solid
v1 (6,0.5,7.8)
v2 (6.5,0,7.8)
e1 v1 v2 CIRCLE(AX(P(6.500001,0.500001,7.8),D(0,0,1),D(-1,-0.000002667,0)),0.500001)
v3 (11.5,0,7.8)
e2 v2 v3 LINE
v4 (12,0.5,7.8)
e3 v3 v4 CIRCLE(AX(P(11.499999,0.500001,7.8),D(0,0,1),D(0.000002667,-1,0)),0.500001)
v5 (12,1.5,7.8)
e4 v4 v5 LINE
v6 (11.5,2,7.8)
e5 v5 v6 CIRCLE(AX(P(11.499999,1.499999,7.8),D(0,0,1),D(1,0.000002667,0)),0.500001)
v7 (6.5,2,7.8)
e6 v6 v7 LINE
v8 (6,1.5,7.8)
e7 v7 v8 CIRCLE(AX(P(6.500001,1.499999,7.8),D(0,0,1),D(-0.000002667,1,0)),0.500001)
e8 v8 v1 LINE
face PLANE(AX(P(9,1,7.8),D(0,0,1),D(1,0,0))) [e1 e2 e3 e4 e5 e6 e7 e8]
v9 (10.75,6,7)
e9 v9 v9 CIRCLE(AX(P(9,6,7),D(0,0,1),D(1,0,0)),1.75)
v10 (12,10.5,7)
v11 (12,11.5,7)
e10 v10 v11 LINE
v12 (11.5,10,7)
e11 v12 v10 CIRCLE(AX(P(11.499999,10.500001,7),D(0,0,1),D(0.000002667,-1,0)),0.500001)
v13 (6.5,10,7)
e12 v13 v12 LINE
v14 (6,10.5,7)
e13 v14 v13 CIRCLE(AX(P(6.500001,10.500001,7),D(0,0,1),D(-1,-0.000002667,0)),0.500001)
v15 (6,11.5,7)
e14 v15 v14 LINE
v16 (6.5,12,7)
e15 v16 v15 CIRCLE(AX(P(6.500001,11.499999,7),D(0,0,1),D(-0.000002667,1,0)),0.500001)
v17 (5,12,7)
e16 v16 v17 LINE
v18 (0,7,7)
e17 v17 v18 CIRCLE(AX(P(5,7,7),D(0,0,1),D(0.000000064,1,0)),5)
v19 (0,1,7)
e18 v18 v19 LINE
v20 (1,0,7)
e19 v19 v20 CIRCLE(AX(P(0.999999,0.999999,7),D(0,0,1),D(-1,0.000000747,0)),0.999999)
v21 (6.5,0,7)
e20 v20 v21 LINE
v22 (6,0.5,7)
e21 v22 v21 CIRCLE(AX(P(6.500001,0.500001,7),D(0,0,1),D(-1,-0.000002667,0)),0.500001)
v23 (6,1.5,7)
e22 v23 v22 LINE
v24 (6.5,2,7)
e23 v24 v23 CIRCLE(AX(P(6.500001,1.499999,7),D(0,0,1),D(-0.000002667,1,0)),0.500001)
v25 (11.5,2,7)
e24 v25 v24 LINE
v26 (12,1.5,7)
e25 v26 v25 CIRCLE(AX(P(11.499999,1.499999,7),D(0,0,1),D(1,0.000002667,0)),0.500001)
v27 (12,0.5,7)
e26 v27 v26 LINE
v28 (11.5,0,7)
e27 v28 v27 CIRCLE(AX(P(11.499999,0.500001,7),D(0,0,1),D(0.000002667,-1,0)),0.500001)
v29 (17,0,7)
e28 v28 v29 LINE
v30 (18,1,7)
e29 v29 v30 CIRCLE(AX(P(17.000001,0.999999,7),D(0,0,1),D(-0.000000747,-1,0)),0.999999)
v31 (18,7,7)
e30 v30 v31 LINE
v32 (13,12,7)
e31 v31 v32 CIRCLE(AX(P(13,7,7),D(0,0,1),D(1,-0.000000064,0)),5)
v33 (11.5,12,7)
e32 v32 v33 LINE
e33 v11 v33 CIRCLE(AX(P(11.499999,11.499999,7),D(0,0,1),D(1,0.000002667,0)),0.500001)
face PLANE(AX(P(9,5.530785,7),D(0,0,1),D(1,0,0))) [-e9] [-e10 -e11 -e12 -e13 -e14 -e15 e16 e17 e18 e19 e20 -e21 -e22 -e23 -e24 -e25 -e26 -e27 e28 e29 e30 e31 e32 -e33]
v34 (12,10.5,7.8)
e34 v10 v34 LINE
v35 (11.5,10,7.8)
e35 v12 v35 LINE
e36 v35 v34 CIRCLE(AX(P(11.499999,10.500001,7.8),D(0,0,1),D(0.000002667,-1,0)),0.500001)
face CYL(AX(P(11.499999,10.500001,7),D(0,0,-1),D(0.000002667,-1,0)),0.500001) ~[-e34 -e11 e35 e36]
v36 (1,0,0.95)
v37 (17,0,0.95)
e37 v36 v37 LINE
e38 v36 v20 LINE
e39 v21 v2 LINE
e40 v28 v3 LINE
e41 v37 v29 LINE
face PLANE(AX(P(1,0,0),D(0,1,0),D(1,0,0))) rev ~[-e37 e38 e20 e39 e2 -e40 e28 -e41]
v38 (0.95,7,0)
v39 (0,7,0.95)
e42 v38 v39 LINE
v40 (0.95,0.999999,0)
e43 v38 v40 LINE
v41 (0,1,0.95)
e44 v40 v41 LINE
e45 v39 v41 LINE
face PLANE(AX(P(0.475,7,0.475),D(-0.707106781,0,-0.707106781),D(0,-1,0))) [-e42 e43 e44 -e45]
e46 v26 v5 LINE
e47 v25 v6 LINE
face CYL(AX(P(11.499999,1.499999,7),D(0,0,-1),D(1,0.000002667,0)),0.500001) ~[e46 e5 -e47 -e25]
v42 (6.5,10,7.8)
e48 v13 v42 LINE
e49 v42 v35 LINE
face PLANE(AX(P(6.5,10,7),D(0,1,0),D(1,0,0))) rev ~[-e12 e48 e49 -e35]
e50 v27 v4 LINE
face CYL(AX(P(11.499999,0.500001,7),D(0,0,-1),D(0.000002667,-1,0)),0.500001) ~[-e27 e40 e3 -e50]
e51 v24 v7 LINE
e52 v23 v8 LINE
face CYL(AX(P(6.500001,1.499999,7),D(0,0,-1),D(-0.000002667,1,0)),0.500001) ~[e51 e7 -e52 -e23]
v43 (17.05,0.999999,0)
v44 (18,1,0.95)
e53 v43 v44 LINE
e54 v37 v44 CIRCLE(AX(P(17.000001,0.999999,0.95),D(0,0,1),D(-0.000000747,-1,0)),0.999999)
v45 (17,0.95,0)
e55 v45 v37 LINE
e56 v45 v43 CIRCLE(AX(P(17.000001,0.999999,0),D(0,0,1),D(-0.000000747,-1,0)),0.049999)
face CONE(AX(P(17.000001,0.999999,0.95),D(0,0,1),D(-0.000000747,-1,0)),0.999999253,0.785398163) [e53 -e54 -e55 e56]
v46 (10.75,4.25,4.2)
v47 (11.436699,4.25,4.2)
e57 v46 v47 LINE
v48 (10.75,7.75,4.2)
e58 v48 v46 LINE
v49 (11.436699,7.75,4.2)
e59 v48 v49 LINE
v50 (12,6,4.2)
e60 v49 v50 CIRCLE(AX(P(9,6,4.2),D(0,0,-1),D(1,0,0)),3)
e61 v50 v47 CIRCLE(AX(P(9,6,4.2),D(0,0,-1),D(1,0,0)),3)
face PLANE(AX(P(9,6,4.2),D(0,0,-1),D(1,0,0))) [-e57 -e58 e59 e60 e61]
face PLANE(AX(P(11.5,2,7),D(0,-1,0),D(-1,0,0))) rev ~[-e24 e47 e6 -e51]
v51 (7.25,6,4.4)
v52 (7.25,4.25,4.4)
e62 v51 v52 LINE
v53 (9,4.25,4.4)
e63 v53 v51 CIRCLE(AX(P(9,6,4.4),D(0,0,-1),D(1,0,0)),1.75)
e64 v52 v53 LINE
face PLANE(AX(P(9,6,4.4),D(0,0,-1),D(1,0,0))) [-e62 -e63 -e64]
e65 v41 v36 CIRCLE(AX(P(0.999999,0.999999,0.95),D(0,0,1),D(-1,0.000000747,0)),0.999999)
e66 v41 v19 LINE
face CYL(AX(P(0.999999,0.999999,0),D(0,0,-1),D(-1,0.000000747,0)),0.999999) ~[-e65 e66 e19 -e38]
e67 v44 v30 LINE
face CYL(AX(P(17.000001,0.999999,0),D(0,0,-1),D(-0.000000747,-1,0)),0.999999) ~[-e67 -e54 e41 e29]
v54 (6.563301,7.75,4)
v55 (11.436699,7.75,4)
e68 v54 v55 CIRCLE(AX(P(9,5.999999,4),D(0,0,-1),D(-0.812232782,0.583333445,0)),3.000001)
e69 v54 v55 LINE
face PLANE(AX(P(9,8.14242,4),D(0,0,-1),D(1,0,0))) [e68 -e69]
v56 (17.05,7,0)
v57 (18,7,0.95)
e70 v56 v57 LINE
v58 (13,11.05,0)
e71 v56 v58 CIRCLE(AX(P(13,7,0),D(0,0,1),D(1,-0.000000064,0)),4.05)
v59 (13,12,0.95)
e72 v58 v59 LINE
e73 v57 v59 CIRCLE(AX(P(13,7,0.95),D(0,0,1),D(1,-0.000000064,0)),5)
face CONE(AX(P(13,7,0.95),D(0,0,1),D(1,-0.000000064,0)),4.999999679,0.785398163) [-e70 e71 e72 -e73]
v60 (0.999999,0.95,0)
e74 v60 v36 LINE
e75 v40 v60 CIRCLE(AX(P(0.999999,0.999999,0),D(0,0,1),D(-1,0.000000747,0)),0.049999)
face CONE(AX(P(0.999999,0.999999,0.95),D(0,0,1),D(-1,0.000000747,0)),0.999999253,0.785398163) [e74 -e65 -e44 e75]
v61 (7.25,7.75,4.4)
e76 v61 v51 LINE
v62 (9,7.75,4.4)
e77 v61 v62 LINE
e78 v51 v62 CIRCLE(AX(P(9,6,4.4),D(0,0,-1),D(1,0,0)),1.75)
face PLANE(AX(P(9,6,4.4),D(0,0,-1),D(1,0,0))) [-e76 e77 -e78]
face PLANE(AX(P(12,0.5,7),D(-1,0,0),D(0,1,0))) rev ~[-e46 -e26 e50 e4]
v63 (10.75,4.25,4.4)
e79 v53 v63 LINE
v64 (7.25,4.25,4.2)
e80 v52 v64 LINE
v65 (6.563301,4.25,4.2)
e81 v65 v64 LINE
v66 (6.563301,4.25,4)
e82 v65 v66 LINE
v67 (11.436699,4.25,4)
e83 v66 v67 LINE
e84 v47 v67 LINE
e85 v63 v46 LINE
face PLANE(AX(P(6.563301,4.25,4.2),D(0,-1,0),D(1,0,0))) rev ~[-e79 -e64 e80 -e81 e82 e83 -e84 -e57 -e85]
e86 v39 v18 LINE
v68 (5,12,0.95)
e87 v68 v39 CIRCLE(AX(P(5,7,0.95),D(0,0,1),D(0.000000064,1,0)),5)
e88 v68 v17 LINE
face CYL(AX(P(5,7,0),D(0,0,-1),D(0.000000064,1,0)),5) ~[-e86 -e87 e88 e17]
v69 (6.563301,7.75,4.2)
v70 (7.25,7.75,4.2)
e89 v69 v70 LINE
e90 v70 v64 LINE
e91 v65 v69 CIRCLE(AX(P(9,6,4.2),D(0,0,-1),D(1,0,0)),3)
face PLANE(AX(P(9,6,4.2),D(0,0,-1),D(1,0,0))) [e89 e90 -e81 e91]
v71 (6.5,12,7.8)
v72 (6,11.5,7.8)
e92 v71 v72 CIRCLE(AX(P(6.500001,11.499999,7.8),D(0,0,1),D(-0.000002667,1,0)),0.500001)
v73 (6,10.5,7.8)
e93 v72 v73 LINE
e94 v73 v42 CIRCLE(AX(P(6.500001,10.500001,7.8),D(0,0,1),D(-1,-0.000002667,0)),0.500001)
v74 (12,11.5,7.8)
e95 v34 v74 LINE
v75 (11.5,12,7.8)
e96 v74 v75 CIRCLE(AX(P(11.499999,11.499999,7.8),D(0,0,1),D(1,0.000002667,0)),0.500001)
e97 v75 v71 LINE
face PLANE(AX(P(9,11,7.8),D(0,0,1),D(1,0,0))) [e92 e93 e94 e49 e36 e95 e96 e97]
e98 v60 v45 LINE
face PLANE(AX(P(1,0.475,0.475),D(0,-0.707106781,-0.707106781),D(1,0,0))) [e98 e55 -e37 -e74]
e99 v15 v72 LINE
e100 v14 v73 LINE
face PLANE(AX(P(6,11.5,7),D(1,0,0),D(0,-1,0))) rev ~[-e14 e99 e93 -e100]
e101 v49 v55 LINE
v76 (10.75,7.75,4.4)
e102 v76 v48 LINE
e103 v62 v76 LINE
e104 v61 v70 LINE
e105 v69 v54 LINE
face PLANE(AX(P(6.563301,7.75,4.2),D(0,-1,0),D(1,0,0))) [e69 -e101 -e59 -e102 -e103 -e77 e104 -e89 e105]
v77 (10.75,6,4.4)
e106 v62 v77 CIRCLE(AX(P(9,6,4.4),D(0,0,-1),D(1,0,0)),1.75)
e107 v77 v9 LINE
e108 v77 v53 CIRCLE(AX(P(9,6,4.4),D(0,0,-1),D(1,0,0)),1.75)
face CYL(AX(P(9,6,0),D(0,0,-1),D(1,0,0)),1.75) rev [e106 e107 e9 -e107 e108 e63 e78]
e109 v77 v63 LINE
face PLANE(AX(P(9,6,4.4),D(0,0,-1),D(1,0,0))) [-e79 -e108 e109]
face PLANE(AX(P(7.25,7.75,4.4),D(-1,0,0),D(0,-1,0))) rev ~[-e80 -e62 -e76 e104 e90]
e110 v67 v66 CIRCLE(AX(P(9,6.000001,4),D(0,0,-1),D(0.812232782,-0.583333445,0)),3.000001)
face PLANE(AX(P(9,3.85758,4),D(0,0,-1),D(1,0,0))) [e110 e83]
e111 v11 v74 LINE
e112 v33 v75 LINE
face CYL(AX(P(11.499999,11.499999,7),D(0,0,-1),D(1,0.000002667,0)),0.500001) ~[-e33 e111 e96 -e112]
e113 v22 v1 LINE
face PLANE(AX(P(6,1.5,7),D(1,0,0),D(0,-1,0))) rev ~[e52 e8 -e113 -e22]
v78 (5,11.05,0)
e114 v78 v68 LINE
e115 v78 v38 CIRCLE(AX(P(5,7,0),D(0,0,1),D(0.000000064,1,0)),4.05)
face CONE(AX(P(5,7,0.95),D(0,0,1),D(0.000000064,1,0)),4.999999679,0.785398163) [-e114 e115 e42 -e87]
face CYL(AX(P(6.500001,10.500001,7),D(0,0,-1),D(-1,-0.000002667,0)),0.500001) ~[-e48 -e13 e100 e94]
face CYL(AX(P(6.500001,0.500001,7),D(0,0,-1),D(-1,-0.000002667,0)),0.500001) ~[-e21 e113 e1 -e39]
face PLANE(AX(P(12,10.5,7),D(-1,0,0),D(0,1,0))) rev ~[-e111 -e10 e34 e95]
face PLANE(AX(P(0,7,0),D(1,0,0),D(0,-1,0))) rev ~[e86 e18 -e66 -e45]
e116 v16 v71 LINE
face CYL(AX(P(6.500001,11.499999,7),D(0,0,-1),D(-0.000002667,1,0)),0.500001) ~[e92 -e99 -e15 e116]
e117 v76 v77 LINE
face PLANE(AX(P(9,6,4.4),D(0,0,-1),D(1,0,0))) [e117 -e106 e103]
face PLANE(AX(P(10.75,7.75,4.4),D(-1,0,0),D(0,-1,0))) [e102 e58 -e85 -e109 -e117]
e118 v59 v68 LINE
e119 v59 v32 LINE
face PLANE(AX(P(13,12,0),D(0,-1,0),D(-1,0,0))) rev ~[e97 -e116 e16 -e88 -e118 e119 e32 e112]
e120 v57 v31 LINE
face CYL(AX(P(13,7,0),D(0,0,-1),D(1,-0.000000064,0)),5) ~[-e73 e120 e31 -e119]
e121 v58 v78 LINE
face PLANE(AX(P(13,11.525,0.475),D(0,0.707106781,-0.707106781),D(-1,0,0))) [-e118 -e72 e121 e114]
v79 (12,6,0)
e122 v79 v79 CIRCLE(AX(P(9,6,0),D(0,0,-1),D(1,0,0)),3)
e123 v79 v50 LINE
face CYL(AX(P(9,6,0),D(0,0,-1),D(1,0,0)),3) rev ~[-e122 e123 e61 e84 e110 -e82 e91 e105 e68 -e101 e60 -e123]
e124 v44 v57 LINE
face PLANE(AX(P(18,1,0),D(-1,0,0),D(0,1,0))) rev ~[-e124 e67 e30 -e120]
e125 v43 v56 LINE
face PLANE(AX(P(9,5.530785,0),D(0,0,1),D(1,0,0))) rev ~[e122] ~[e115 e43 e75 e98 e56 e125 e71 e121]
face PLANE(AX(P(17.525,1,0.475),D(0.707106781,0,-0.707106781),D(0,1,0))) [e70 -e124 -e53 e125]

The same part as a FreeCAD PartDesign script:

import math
import FreeCAD as App
import Part
import Sketcher


def edges_at(feature, points):
    """Names of the edges that pass closest to the given points."""
    edges = feature.Shape.Edges
    near = lambda p: min(range(len(edges)), key=lambda i: edges[i].distToShape(Part.Vertex(*p))[0])
    return sorted({f"Edge{near(p) + 1}" for p in points})


def add_polygon(sketch, points):
    """Adds a closed chain of lines whose ends are joined by coincident constraints."""
    first, n = sketch.GeometryCount, len(points)
    for a, b in zip(points, points[1:] + points[:1]):
        sketch.addGeometry(Part.LineSegment(App.Vector(*a, 0), App.Vector(*b, 0)), False)
    for i in range(n):
        sketch.addConstraint(Sketcher.Constraint("Coincident", first + i, 2, first + (i + 1) % n, 1))

doc = App.newDocument("Part")
body = doc.addObject("PartDesign::Body", "Body")

# Sketch on XY plane
sketch1 = body.newObject("Sketcher::SketchObject", "Sketch")
sketch1.AttachmentSupport = (doc.getObject("XY_Plane"), [""])
sketch1.MapMode = "FlatFace"
sketch1.addGeometry([
    Part.LineSegment(App.Vector(18, 1, 0), App.Vector(18, 7, 0)),  # 0
    Part.ArcOfCircle(Part.Circle(App.Vector(13, 7, 0), App.Vector(0, 0, 1), 5), math.radians(-0.000004), math.radians(90.000004)),  # 1
    Part.LineSegment(App.Vector(13, 12, 0), App.Vector(5, 12, 0)),  # 2
    Part.ArcOfCircle(Part.Circle(App.Vector(5, 7, 0), App.Vector(0, 0, 1), 5), math.radians(89.999996), math.radians(180.000004)),  # 3
    Part.LineSegment(App.Vector(0, 7, 0), App.Vector(0, 1, 0)),  # 4
    Part.ArcOfCircle(Part.Circle(App.Vector(0.999999, 0.999999, 0), App.Vector(0, 0, 1), 0.999999), math.radians(179.999957), math.radians(270.000043)),  # 5
    Part.LineSegment(App.Vector(1, 0, 0), App.Vector(17, 0, 0)),  # 6
    Part.ArcOfCircle(Part.Circle(App.Vector(17.000001, 0.999999, 0), App.Vector(0, 0, 1), 0.999999), math.radians(-90.000043), math.radians(0.000043)),  # 7
    Part.Circle(App.Vector(9, 6, 0), App.Vector(0, 0, 1), 1.75),  # 8
], False)
sketch1.addConstraint([
    Sketcher.Constraint("Tangent", 0, 2, 1, 1),
    Sketcher.Constraint("Tangent", 1, 2, 2, 1),
    Sketcher.Constraint("Tangent", 2, 2, 3, 1),
    Sketcher.Constraint("Tangent", 3, 2, 4, 1),
    Sketcher.Constraint("Tangent", 4, 2, 5, 1),
    Sketcher.Constraint("Tangent", 5, 2, 6, 1),
    Sketcher.Constraint("Tangent", 6, 2, 7, 1),
    Sketcher.Constraint("Tangent", 7, 2, 0, 1),
    Sketcher.Constraint("Vertical", 0),
    Sketcher.Constraint("Horizontal", 2),
    Sketcher.Constraint("Vertical", 4),
    Sketcher.Constraint("Horizontal", 6),
    Sketcher.Constraint("Equal", 1, 3),
    Sketcher.Constraint("Equal", 5, 7),
    Sketcher.Constraint("PointOnObject", 3, 2, -2),
    Sketcher.Constraint("PointOnObject", 5, 2, -1),
    Sketcher.Constraint("Radius", 1, 5.0),
    Sketcher.Constraint("Radius", 5, 0.999999),
    Sketcher.Constraint("Diameter", 8, 3.5),
    Sketcher.Constraint("DistanceX", 2, 2, 2, 1, 8.0),
    Sketcher.Constraint("DistanceY", 0, 1, 0, 2, 6.0),
    Sketcher.Constraint("DistanceX", -1, 1, 8, 3, 9.0),
    Sketcher.Constraint("DistanceY", -1, 1, 8, 3, 6.0),
])
pad1 = body.newObject("PartDesign::Pad", "Pad")
pad1.Profile = sketch1
pad1.Length = 7

# Sketch on XY plane
sketch2 = body.newObject("Sketcher::SketchObject", "Sketch001")
sketch2.AttachmentSupport = (doc.getObject("XY_Plane"), [""])
sketch2.MapMode = "FlatFace"
sketch2.AttachmentOffset = App.Placement(App.Vector(0, 0, 7), App.Rotation())
sketch2.addGeometry([
    Part.LineSegment(App.Vector(6, 11.5, 0), App.Vector(6, 10.5, 0)),  # 0
    Part.ArcOfCircle(Part.Circle(App.Vector(6.500001, 10.500001, 0), App.Vector(0, 0, 1), 0.500001), math.radians(-179.999847), math.radians(-90.000153)),  # 1
    Part.LineSegment(App.Vector(6.5, 10, 0), App.Vector(11.5, 10, 0)),  # 2
    Part.ArcOfCircle(Part.Circle(App.Vector(11.499999, 10.500001, 0), App.Vector(0, 0, 1), 0.500001), math.radians(-89.999847), math.radians(-0.000153)),  # 3
    Part.LineSegment(App.Vector(12, 10.5, 0), App.Vector(12, 11.5, 0)),  # 4
    Part.ArcOfCircle(Part.Circle(App.Vector(11.499999, 11.499999, 0), App.Vector(0, 0, 1), 0.500001), math.radians(0.000153), math.radians(89.999847)),  # 5
    Part.LineSegment(App.Vector(11.5, 12, 0), App.Vector(6.5, 12, 0)),  # 6
    Part.ArcOfCircle(Part.Circle(App.Vector(6.500001, 11.499999, 0), App.Vector(0, 0, 1), 0.500001), math.radians(90.000153), math.radians(179.999847)),  # 7
    Part.LineSegment(App.Vector(6, 1.5, 0), App.Vector(6, 0.5, 0)),  # 8
    Part.ArcOfCircle(Part.Circle(App.Vector(6.500001, 0.500001, 0), App.Vector(0, 0, 1), 0.500001), math.radians(-179.999847), math.radians(-90.000153)),  # 9
    Part.LineSegment(App.Vector(6.5, 0, 0), App.Vector(11.5, 0, 0)),  # 10
    Part.ArcOfCircle(Part.Circle(App.Vector(11.499999, 0.500001, 0), App.Vector(0, 0, 1), 0.500001), math.radians(-89.999847), math.radians(-0.000153)),  # 11
    Part.LineSegment(App.Vector(12, 0.5, 0), App.Vector(12, 1.5, 0)),  # 12
    Part.ArcOfCircle(Part.Circle(App.Vector(11.499999, 1.499999, 0), App.Vector(0, 0, 1), 0.500001), math.radians(0.000153), math.radians(89.999847)),  # 13
    Part.LineSegment(App.Vector(11.5, 2, 0), App.Vector(6.5, 2, 0)),  # 14
    Part.ArcOfCircle(Part.Circle(App.Vector(6.500001, 1.499999, 0), App.Vector(0, 0, 1), 0.500001), math.radians(90.000153), math.radians(179.999847)),  # 15
], False)
sketch2.addConstraint([
    Sketcher.Constraint("Coincident", 0, 2, 1, 1),
    Sketcher.Constraint("Coincident", 1, 2, 2, 1),
    Sketcher.Constraint("Coincident", 2, 2, 3, 1),
    Sketcher.Constraint("Coincident", 3, 2, 4, 1),
    Sketcher.Constraint("Coincident", 4, 2, 5, 1),
    Sketcher.Constraint("Coincident", 5, 2, 6, 1),
    Sketcher.Constraint("Coincident", 6, 2, 7, 1),
    Sketcher.Constraint("Coincident", 7, 2, 0, 1),
    Sketcher.Constraint("Coincident", 8, 2, 9, 1),
    Sketcher.Constraint("Coincident", 9, 2, 10, 1),
    Sketcher.Constraint("Coincident", 10, 2, 11, 1),
    Sketcher.Constraint("Coincident", 11, 2, 12, 1),
    Sketcher.Constraint("Coincident", 12, 2, 13, 1),
    Sketcher.Constraint("Coincident", 13, 2, 14, 1),
    Sketcher.Constraint("Coincident", 14, 2, 15, 1),
    Sketcher.Constraint("Coincident", 15, 2, 8, 1),
    Sketcher.Constraint("Vertical", 0),
    Sketcher.Constraint("Horizontal", 2),
    Sketcher.Constraint("Vertical", 4),
    Sketcher.Constraint("Horizontal", 6),
    Sketcher.Constraint("Vertical", 8),
    Sketcher.Constraint("Horizontal", 10),
    Sketcher.Constraint("Vertical", 12),
    Sketcher.Constraint("Horizontal", 14),
    Sketcher.Constraint("Equal", 1, 3),
    Sketcher.Constraint("Equal", 3, 5),
    Sketcher.Constraint("Equal", 5, 7),
    Sketcher.Constraint("Equal", 7, 9),
    Sketcher.Constraint("Equal", 9, 11),
    Sketcher.Constraint("Equal", 11, 13),
    Sketcher.Constraint("Equal", 13, 15),
    Sketcher.Constraint("PointOnObject", 9, 2, -1),
    Sketcher.Constraint("Horizontal", 3, 3, 0, 2),
    Sketcher.Constraint("Horizontal", 0, 2, 3, 2),
    Sketcher.Constraint("Horizontal", 7, 3, 4, 2),
    Sketcher.Constraint("Horizontal", 4, 2, 7, 2),
    Sketcher.Constraint("Horizontal", 11, 3, 8, 2),
    Sketcher.Constraint("Horizontal", 8, 2, 11, 2),
    Sketcher.Constraint("Horizontal", 15, 3, 12, 2),
    Sketcher.Constraint("Horizontal", 12, 2, 15, 2),
    Sketcher.Constraint("Vertical", 7, 3, 9, 3),
    Sketcher.Constraint("Vertical", 5, 3, 11, 3),
    Sketcher.Constraint("Vertical", 15, 3, 1, 2),
    Sketcher.Constraint("Vertical", 13, 3, 2, 2),
    Sketcher.Constraint("Vertical", 2, 2, 5, 2),
    Sketcher.Constraint("Vertical", 1, 2, 6, 2),
    Sketcher.Constraint("Vertical", 6, 2, 9, 2),
    Sketcher.Constraint("Vertical", 5, 2, 10, 2),
    Sketcher.Constraint("Vertical", 10, 2, 13, 2),
    Sketcher.Constraint("Vertical", 9, 2, 14, 2),
    Sketcher.Constraint("Equal", 4, 8),
    Sketcher.Constraint("Radius", 1, 0.500001),
    Sketcher.Constraint("DistanceX", 2, 1, 2, 2, 5.0),
    Sketcher.Constraint("DistanceY", 0, 2, 0, 1, 1.0),
    Sketcher.Constraint("DistanceX", -1, 1, 0, 2, 6.0),
    Sketcher.Constraint("DistanceY", -1, 1, 1, 2, 10.0),
])
pad2 = body.newObject("PartDesign::Pad", "Pad001")
pad2.Profile = sketch2
pad2.Length = 0.8

# Sketch on XY plane
sketch3 = body.newObject("Sketcher::SketchObject", "Sketch002")
sketch3.AttachmentSupport = (doc.getObject("XY_Plane"), [""])
sketch3.MapMode = "FlatFace"
sketch3.addGeometry(Part.Circle(App.Vector(9, 6, 0), App.Vector(0, 0, 1), 3), False)
sketch3.addConstraint([
    Sketcher.Constraint("Diameter", 0, 6.0),
    Sketcher.Constraint("DistanceX", -1, 1, 0, 3, 9.0),
    Sketcher.Constraint("DistanceY", -1, 1, 0, 3, 6.0),
])
pocket1 = body.newObject("PartDesign::Pocket", "Pocket")
pocket1.Profile = sketch3
pocket1.Length = 4.4
pocket1.Reversed = True

# Sketch on XY plane
sketch4 = body.newObject("Sketcher::SketchObject", "Sketch003")
sketch4.AttachmentSupport = (doc.getObject("XY_Plane"), [""])
sketch4.MapMode = "FlatFace"
sketch4.AttachmentOffset = App.Placement(App.Vector(0, 0, 4.4), App.Rotation())
sketch4.addGeometry(Part.Circle(App.Vector(9, 6, 0), App.Vector(0, 0, 1), 3), False)  # 0
add_polygon(sketch4, [(10.75, 7.75), (7.25, 7.75), (7.25, 4.25), (10.75, 4.25)])  # lines 1-4
sketch4.addConstraint([
    Sketcher.Constraint("Horizontal", 1),
    Sketcher.Constraint("Vertical", 2),
    Sketcher.Constraint("Horizontal", 3),
    Sketcher.Constraint("Vertical", 4),
    Sketcher.Constraint("Equal", 3, 2),
    Sketcher.Constraint("Diameter", 0, 6.0),
    Sketcher.Constraint("DistanceX", 1, 2, 1, 1, 3.5),
    Sketcher.Constraint("DistanceX", -1, 1, 0, 3, 9.0),
    Sketcher.Constraint("DistanceY", -1, 1, 0, 3, 6.0),
    Sketcher.Constraint("DistanceX", -1, 1, 1, 2, 7.25),
    Sketcher.Constraint("DistanceY", -1, 1, 1, 2, 7.75),
])
pad3 = body.newObject("PartDesign::Pad", "Pad002")
pad3.Profile = sketch4
pad3.Length = 0.2
pad3.Reversed = True

# Sketch on XY plane
sketch5 = body.newObject("Sketcher::SketchObject", "Sketch004")
sketch5.AttachmentSupport = (doc.getObject("XY_Plane"), [""])
sketch5.MapMode = "FlatFace"
sketch5.AttachmentOffset = App.Placement(App.Vector(0, 0, 4.2), App.Rotation())
sketch5.addGeometry([
    Part.ArcOfCircle(Part.Circle(App.Vector(9, 6.000001, 0), App.Vector(0, 0, 1), 3.000001), math.radians(-144.314657), math.radians(-35.685343)),
    Part.LineSegment(App.Vector(6.563301, 4.25, 0), App.Vector(11.436699, 4.25, 0)),
    Part.ArcOfCircle(Part.Circle(App.Vector(9, 5.999999, 0), App.Vector(0, 0, 1), 3.000001), math.radians(35.685343), math.radians(144.314657)),
    Part.LineSegment(App.Vector(11.436699, 7.75, 0), App.Vector(6.563301, 7.75, 0)),
], False)
sketch5.addConstraint([
    Sketcher.Constraint("Coincident", 0, 1, 1, 1),
    Sketcher.Constraint("Coincident", 1, 2, 0, 2),
    Sketcher.Constraint("Coincident", 2, 1, 3, 1),
    Sketcher.Constraint("Coincident", 3, 2, 2, 2),
    Sketcher.Constraint("Horizontal", 1),
    Sketcher.Constraint("Horizontal", 3),
    Sketcher.Constraint("Coincident", 2, 3, 0, 3),
    Sketcher.Constraint("Equal", 0, 2),
    Sketcher.Constraint("Vertical", 1, 2, 2, 1),
    Sketcher.Constraint("Radius", 0, 3.000001),
    Sketcher.Constraint("DistanceX", -1, 1, 0, 3, 9.0),
    Sketcher.Constraint("DistanceY", -1, 1, 0, 3, 6.000001),
    Sketcher.Constraint("DistanceY", 1, 2, 2, 1, 3.5),
])
pad4 = body.newObject("PartDesign::Pad", "Pad003")
pad4.Profile = sketch5
pad4.Length = 0.2
pad4.Reversed = True
doc.recompute()

chamfer = body.newObject("PartDesign::Chamfer", "Chamfer")
chamfer.Base = (pad4, edges_at(pad4, [(0.293, 0.293, 0)]))
chamfer.Size = 0.95

doc.recompute()
